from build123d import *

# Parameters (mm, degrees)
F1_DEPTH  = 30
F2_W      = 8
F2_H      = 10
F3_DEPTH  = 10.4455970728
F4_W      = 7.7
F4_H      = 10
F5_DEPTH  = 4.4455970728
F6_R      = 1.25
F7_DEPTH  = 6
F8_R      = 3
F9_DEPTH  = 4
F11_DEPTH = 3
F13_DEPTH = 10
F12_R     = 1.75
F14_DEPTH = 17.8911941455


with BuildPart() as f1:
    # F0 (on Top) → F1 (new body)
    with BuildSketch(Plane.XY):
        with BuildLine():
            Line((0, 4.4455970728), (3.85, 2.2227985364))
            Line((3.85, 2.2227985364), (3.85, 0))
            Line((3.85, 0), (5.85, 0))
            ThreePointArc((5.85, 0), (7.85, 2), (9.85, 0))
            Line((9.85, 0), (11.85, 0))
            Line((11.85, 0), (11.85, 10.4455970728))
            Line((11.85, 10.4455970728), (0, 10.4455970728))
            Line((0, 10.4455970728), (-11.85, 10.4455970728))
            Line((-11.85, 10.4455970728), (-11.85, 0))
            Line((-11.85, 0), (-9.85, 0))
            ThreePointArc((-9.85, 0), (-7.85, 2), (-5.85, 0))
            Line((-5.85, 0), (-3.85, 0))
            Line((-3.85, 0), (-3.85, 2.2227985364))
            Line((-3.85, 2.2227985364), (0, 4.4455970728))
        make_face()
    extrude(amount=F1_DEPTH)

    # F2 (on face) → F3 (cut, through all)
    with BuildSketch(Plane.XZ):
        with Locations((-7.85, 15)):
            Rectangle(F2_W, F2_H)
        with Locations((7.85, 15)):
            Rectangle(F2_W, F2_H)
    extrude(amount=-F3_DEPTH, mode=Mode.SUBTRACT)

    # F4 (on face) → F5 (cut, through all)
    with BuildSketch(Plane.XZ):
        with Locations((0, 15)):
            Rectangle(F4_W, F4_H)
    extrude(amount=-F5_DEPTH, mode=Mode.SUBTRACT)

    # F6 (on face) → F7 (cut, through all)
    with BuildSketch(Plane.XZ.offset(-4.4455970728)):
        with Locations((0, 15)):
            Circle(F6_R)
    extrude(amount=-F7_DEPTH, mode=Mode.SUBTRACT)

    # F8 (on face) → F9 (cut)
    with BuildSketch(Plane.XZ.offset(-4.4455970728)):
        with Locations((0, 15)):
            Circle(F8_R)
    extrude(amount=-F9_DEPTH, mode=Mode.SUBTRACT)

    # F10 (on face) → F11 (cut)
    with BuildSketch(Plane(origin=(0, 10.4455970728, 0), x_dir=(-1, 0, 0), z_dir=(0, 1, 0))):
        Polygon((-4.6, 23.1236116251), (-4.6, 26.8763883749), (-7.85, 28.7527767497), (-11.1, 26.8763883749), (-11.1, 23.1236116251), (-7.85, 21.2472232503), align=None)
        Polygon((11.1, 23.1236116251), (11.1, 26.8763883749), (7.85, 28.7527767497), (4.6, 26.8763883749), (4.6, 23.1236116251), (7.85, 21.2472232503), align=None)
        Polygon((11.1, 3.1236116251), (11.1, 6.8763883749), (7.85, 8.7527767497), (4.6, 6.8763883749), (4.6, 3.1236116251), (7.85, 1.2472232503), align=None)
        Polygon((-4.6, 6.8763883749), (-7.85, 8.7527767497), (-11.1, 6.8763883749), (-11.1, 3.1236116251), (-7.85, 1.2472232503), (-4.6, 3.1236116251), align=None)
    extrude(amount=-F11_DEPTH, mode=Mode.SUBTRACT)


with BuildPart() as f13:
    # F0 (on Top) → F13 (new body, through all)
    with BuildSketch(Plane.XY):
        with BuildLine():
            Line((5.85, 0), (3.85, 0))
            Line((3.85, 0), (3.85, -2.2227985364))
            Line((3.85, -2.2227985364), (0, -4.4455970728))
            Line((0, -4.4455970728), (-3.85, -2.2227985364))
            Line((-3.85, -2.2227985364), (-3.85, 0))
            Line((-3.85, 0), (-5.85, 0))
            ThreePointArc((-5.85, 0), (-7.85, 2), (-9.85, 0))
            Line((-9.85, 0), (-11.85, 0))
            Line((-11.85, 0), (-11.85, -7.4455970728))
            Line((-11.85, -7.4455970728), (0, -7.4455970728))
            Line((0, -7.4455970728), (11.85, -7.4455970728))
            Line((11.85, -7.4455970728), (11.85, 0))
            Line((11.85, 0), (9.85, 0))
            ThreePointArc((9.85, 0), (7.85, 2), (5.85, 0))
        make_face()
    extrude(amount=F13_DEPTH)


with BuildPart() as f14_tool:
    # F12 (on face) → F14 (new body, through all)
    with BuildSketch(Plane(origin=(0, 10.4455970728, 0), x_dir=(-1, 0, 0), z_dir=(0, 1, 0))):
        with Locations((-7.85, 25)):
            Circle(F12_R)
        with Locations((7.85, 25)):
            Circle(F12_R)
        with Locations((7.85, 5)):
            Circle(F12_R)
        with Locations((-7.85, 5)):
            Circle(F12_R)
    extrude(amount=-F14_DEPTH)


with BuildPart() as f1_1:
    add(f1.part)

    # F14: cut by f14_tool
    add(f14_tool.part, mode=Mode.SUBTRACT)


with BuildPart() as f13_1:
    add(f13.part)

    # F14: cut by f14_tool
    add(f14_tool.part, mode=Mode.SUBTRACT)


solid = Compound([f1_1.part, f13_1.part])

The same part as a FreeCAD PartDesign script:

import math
import FreeCAD as App
import Part
import Sketcher
from FreeCAD import Vector
Q = App.Units.Quantity

doc = App.newDocument("Part")
body = doc.addObject("PartDesign::Body", "Body")

# Sketch on XY plane
sketch1 = body.newObject("Sketcher::SketchObject", "Sketch")
sketch1.AttachmentSupport = (doc.getObject("XY_Plane"), [""])
sketch1.MapMode = "FlatFace"
sketch1.addGeometry([
    Part.LineSegment(Vector(0, 4.4, 0), Vector(3.9, 2.2, 0)),  # 0
    Part.LineSegment(Vector(3.9, 2.2, 0), Vector(3.9, 0, 0)),  # 1
    Part.LineSegment(Vector(3.9, 0, 0), Vector(5.8, 0, 0)),  # 2
    Part.ArcOfCircle(Part.Circle(Vector(7.8, 0, 0), Vector(0, 0, 1), 2), math.radians(0), math.radians(180)),  # 3
    Part.LineSegment(Vector(9.8, 0, 0), Vector(11.8, 0, 0)),  # 4
    Part.LineSegment(Vector(11.8, 0, 0), Vector(11.8, 10.4, 0)),  # 5
    Part.LineSegment(Vector(11.8, 10.4, 0), Vector(-11.8, 10.4, 0)),  # 6
    Part.LineSegment(Vector(-11.8, 10.4, 0), Vector(-11.8, 0, 0)),  # 7
    Part.LineSegment(Vector(-11.8, 0, 0), Vector(-9.8, 0, 0)),  # 8
    Part.ArcOfCircle(Part.Circle(Vector(-7.8, 0, 0), Vector(0, 0, 1), 2), math.radians(0), math.radians(180)),  # 9
    Part.LineSegment(Vector(-5.8, 0, 0), Vector(-3.9, 0, 0)),  # 10
    Part.LineSegment(Vector(-3.9, 0, 0), Vector(-3.9, 2.2, 0)),  # 11
    Part.LineSegment(Vector(-3.9, 2.2, 0), Vector(0, 4.4, 0)),  # 12
], False)
sketch1.addConstraint([
    Sketcher.Constraint("Coincident", 0, 2, 1, 1),
    Sketcher.Constraint("Coincident", 1, 2, 2, 1),
    Sketcher.Constraint("Coincident", 2, 2, 3, 2),
    Sketcher.Constraint("Coincident", 3, 1, 4, 1),
    Sketcher.Constraint("Coincident", 4, 2, 5, 1),
    Sketcher.Constraint("Coincident", 5, 2, 6, 1),
    Sketcher.Constraint("Coincident", 6, 2, 7, 1),
    Sketcher.Constraint("Coincident", 7, 2, 8, 1),
    Sketcher.Constraint("Coincident", 8, 2, 9, 2),
    Sketcher.Constraint("Coincident", 9, 1, 10, 1),
    Sketcher.Constraint("Coincident", 10, 2, 11, 1),
    Sketcher.Constraint("Coincident", 11, 2, 12, 1),
    Sketcher.Constraint("Coincident", 12, 2, 0, 1),
    Sketcher.Constraint("Vertical", 1),
    Sketcher.Constraint("Horizontal", 2),
    Sketcher.Constraint("Horizontal", 4),
    Sketcher.Constraint("Vertical", 5),
    Sketcher.Constraint("Horizontal", 6),
    Sketcher.Constraint("Vertical", 7),
    Sketcher.Constraint("Horizontal", 8),
    Sketcher.Constraint("Horizontal", 10),
    Sketcher.Constraint("Vertical", 11),
    Sketcher.Constraint("Equal", 3, 9),
    Sketcher.Constraint("Symmetric", 3, 3, 9, 3, -1, 1),
    Sketcher.Constraint("Symmetric", 4, 2, 7, 2, -1, 1),
    Sketcher.Constraint("Symmetric", 1, 2, 10, 2, -1, 1),
    Sketcher.Constraint("PointOnObject", 3, 3, -1),
    Sketcher.Constraint("PointOnObject", 1, 2, -1),
    Sketcher.Constraint("PointOnObject", 3, 1, -1),
    Sketcher.Constraint("PointOnObject", 12, 2, -2),
    Sketcher.Constraint("Horizontal", 0, 2, 11, 2),
    Sketcher.Constraint("Equal", 2, 4),
    Sketcher.Constraint("Radius", 3, Q("2 mm")),
    Sketcher.Constraint("DistanceX", 2, 1, 2, 2, Q("2 mm")),
    Sketcher.Constraint("Angle", 0, Q("-30 deg")),
    Sketcher.Constraint("DistanceX", 6, 2, 6, 1, Q("23.7 mm")),
    Sketcher.Constraint("DistanceY", 1, 2, 1, 1, Q("2.222799 mm")),
    Sketcher.Constraint("DistanceY", 0, 2, 5, 2, Q("8.222799 mm")),
])
pad1 = body.newObject("PartDesign::Pad", "Pad")
pad1.Profile = sketch1
pad1.Length = 30

# Sketch on XZ plane
sketch2 = body.newObject("Sketcher::SketchObject", "Sketch001")
sketch2.AttachmentSupport = (doc.getObject("XZ_Plane"), [""])
sketch2.MapMode = "FlatFace"
sketch2.addGeometry([
    Part.LineSegment(Vector(-12, 20, 0), Vector(-12, 10, 0)),  # 0
    Part.LineSegment(Vector(-12, 10, 0), Vector(-4, 10, 0)),  # 1
    Part.LineSegment(Vector(-4, 10, 0), Vector(-4, 20, 0)),  # 2
    Part.LineSegment(Vector(-4, 20, 0), Vector(-12, 20, 0)),  # 3
    Part.LineSegment(Vector(4, 20, 0), Vector(4, 10, 0)),  # 4
    Part.LineSegment(Vector(4, 10, 0), Vector(12, 10, 0)),  # 5
    Part.LineSegment(Vector(12, 10, 0), Vector(12, 20, 0)),  # 6
    Part.LineSegment(Vector(12, 20, 0), Vector(4, 20, 0)),  # 7
], False)
sketch2.addConstraint([
    Sketcher.Constraint("Coincident", 0, 2, 1, 1),
    Sketcher.Constraint("Coincident", 1, 2, 2, 1),
    Sketcher.Constraint("Coincident", 2, 2, 3, 1),
    Sketcher.Constraint("Coincident", 3, 2, 0, 1),
    Sketcher.Constraint("Coincident", 4, 2, 5, 1),
    Sketcher.Constraint("Coincident", 5, 2, 6, 1),
    Sketcher.Constraint("Coincident", 6, 2, 7, 1),
    Sketcher.Constraint("Coincident", 7, 2, 4, 1),
    Sketcher.Constraint("Vertical", 0),
    Sketcher.Constraint("Horizontal", 1),
    Sketcher.Constraint("Vertical", 2),
    Sketcher.Constraint("Horizontal", 3),
    Sketcher.Constraint("Vertical", 4),
    Sketcher.Constraint("Horizontal", 5),
    Sketcher.Constraint("Vertical", 6),
    Sketcher.Constraint("Horizontal", 7),
    Sketcher.Constraint("Symmetric", 1, 2, 4, 2, -2),
    Sketcher.Constraint("Symmetric", 3, 2, 6, 2, -2),
    Sketcher.Constraint("DistanceX", 1, 1, 1, 2, Q("8 mm")),
    Sketcher.Constraint("DistanceY", 0, 2, 0, 1, Q("10 mm")),
    Sketcher.Constraint("DistanceY", -1, 1, 0, 2, Q("10 mm")),
    Sketcher.Constraint("DistanceX", 1, 2, 4, 2, Q("7.7 mm")),
])
pocket1 = body.newObject("PartDesign::Pocket", "Pocket")
pocket1.Profile = sketch2
pocket1.Type = "ThroughAll"

# Sketch on XZ plane
sketch3 = body.newObject("Sketcher::SketchObject", "Sketch002")
sketch3.AttachmentSupport = (doc.getObject("XZ_Plane"), [""])
sketch3.MapMode = "FlatFace"
sketch3.addGeometry([
    Part.LineSegment(Vector(-4, 20, 0), Vector(-4, 10, 0)),
    Part.LineSegment(Vector(-4, 10, 0), Vector(4, 10, 0)),
    Part.LineSegment(Vector(4, 10, 0), Vector(4, 20, 0)),
    Part.LineSegment(Vector(4, 20, 0), Vector(-4, 20, 0)),
], False)
sketch3.addConstraint([
    Sketcher.Constraint("Coincident", 0, 2, 1, 1),
    Sketcher.Constraint("Coincident", 1, 2, 2, 1),
    Sketcher.Constraint("Coincident", 2, 2, 3, 1),
    Sketcher.Constraint("Coincident", 3, 2, 0, 1),
    Sketcher.Constraint("Vertical", 0),
    Sketcher.Constraint("Horizontal", 1),
    Sketcher.Constraint("Vertical", 2),
    Sketcher.Constraint("Horizontal", 3),
    Sketcher.Constraint("DistanceY", 0, 2, 0, 1, Q("10 mm")),
    Sketcher.Constraint("DistanceX", 1, 1, 1, 2, Q("7.7 mm")),
    Sketcher.Constraint("DistanceY", -1, 1, 0, 2, Q("10 mm")),
    Sketcher.Constraint("DistanceX", 0, 2, -1, 1, Q("3.85 mm")),
])
pocket2 = body.newObject("PartDesign::Pocket", "Pocket001")
pocket2.Profile = sketch3
pocket2.Length = 4.445597

# Sketch on XZ plane
sketch4 = body.newObject("Sketcher::SketchObject", "Sketch003")
sketch4.AttachmentSupport = (doc.getObject("XZ_Plane"), [""])
sketch4.MapMode = "FlatFace"
sketch4.AttachmentOffset = App.Placement(Vector(0, 0, -4.445597), App.Rotation())
sketch4.addGeometry(Part.Circle(Vector(0, 15, 0), Vector(0, 0, 1), 1.2), False)
sketch4.addConstraint([
    Sketcher.Constraint("PointOnObject", 0, 3, -2),
    Sketcher.Constraint("Diameter", 0, Q("2.5 mm")),
    Sketcher.Constraint("DistanceY", -1, 1, 0, 3, Q("15 mm")),
])
pocket3 = body.newObject("PartDesign::Pocket", "Pocket002")
pocket3.Profile = sketch4
pocket3.Type = "ThroughAll"

# Sketch on XZ plane
sketch5 = body.newObject("Sketcher::SketchObject", "Sketch004")
sketch5.AttachmentSupport = (doc.getObject("XZ_Plane"), [""])
sketch5.MapMode = "FlatFace"
sketch5.AttachmentOffset = App.Placement(Vector(0, 0, -4.445597), App.Rotation())
sketch5.addGeometry(Part.Circle(Vector(0, 15, 0), Vector(0, 0, 1), 3), False)
sketch5.addConstraint([
    Sketcher.Constraint("PointOnObject", 0, 3, -2),
    Sketcher.Constraint("Diameter", 0, Q("6 mm")),
    Sketcher.Constraint("DistanceY", -1, 1, 0, 3, Q("15 mm")),
])
pocket4 = body.newObject("PartDesign::Pocket", "Pocket003")
pocket4.Profile = sketch5
pocket4.Length = 4

# Sketch on XZ plane
sketch6 = body.newObject("Sketcher::SketchObject", "Sketch005")
sketch6.AttachmentSupport = (doc.getObject("XZ_Plane"), [""])
sketch6.MapMode = "FlatFace"
sketch6.AttachmentOffset = App.Placement(Vector(0, 0, -10.445597), App.Rotation())
sketch6.addGeometry([
    Part.LineSegment(Vector(4.6, 23.1, 0), Vector(4.6, 26.9, 0)),  # 0
    Part.LineSegment(Vector(4.6, 26.9, 0), Vector(7.8, 28.8, 0)),  # 1
    Part.LineSegment(Vector(7.8, 28.8, 0), Vector(11.1, 26.9, 0)),  # 2
    Part.LineSegment(Vector(11.1, 26.9, 0), Vector(11.1, 23.1, 0)),  # 3
    Part.LineSegment(Vector(11.1, 23.1, 0), Vector(7.8, 21.2, 0)),  # 4
    Part.LineSegment(Vector(7.8, 21.2, 0), Vector(4.6, 23.1, 0)),  # 5
    Part.LineSegment(Vector(-11.1, 23.1, 0), Vector(-11.1, 26.9, 0)),  # 6
    Part.LineSegment(Vector(-11.1, 26.9, 0), Vector(-7.8, 28.8, 0)),  # 7
    Part.LineSegment(Vector(-7.8, 28.8, 0), Vector(-4.6, 26.9, 0)),  # 8
    Part.LineSegment(Vector(-4.6, 26.9, 0), Vector(-4.6, 23.1, 0)),  # 9
    Part.LineSegment(Vector(-4.6, 23.1, 0), Vector(-7.8, 21.2, 0)),  # 10
    Part.LineSegment(Vector(-7.8, 21.2, 0), Vector(-11.1, 23.1, 0)),  # 11
    Part.LineSegment(Vector(-11.1, 3.1, 0), Vector(-11.1, 6.9, 0)),  # 12
    Part.LineSegment(Vector(-11.1, 6.9, 0), Vector(-7.8, 8.8, 0)),  # 13
    Part.LineSegment(Vector(-7.8, 8.8, 0), Vector(-4.6, 6.9, 0)),  # 14
    Part.LineSegment(Vector(-4.6, 6.9, 0), Vector(-4.6, 3.1, 0)),  # 15
    Part.LineSegment(Vector(-4.6, 3.1, 0), Vector(-7.8, 1.2, 0)),  # 16
    Part.LineSegment(Vector(-7.8, 1.2, 0), Vector(-11.1, 3.1, 0)),  # 17
    Part.LineSegment(Vector(4.6, 6.9, 0), Vector(7.8, 8.8, 0)),  # 18
    Part.LineSegment(Vector(7.8, 8.8, 0), Vector(11.1, 6.9, 0)),  # 19
    Part.LineSegment(Vector(11.1, 6.9, 0), Vector(11.1, 3.1, 0)),  # 20
    Part.LineSegment(Vector(11.1, 3.1, 0), Vector(7.8, 1.2, 0)),  # 21
    Part.LineSegment(Vector(7.8, 1.2, 0), Vector(4.6, 3.1, 0)),  # 22
    Part.LineSegment(Vector(4.6, 3.1, 0), Vector(4.6, 6.9, 0)),  # 23
], False)
sketch6.addConstraint([
    Sketcher.Constraint("Coincident", 0, 2, 1, 1),
    Sketcher.Constraint("Coincident", 1, 2, 2, 1),
    Sketcher.Constraint("Coincident", 2, 2, 3, 1),
    Sketcher.Constraint("Coincident", 3, 2, 4, 1),
    Sketcher.Constraint("Coincident", 4, 2, 5, 1),
    Sketcher.Constraint("Coincident", 5, 2, 0, 1),
    Sketcher.Constraint("Coincident", 6, 2, 7, 1),
    Sketcher.Constraint("Coincident", 7, 2, 8, 1),
    Sketcher.Constraint("Coincident", 8, 2, 9, 1),
    Sketcher.Constraint("Coincident", 9, 2, 10, 1),
    Sketcher.Constraint("Coincident", 10, 2, 11, 1),
    Sketcher.Constraint("Coincident", 11, 2, 6, 1),
    Sketcher.Constraint("Coincident", 12, 2, 13, 1),
    Sketcher.Constraint("Coincident", 13, 2, 14, 1),
    Sketcher.Constraint("Coincident", 14, 2, 15, 1),
    Sketcher.Constraint("Coincident", 15, 2, 16, 1),
    Sketcher.Constraint("Coincident", 16, 2, 17, 1),
    Sketcher.Constraint("Coincident", 17, 2, 12, 1),
    Sketcher.Constraint("Coincident", 18, 2, 19, 1),
    Sketcher.Constraint("Coincident", 19, 2, 20, 1),
    Sketcher.Constraint("Coincident", 20, 2, 21, 1),
    Sketcher.Constraint("Coincident", 21, 2, 22, 1),
    Sketcher.Constraint("Coincident", 22, 2, 23, 1),
    Sketcher.Constraint("Coincident", 23, 2, 18, 1),
    Sketcher.Constraint("Vertical", 0),
    Sketcher.Constraint("Vertical", 3),
    Sketcher.Constraint("Vertical", 6),
    Sketcher.Constraint("Vertical", 9),
    Sketcher.Constraint("Vertical", 12),
    Sketcher.Constraint("Vertical", 15),
    Sketcher.Constraint("Vertical", 20),
    Sketcher.Constraint("Vertical", 23),
    Sketcher.Constraint("Symmetric", 2, 2, 6, 2, -2),
    Sketcher.Constraint("Symmetric", 1, 2, 7, 2, -2),
    Sketcher.Constraint("Symmetric", 0, 2, 8, 2, -2),
    Sketcher.Constraint("Symmetric", 4, 2, 10, 2, -2),
    Sketcher.Constraint("Symmetric", 13, 2, 18, 2, -2),
    Sketcher.Constraint("Symmetric", 12, 2, 19, 2, -2),
    Sketcher.Constraint("Symmetric", 16, 2, 21, 2, -2),
    Sketcher.Constraint("Symmetric", 15, 2, 22, 2, -2),
    Sketcher.Constraint("Parallel", 1, 4),
    Sketcher.Constraint("Parallel", 2, 5),
    Sketcher.Constraint("Parallel", 4, 7),
    Sketcher.Constraint("Parallel", 7, 10),
    Sketcher.Constraint("Parallel", 8, 11),
    Sketcher.Constraint("Parallel", 10, 13),
    Sketcher.Constraint("Parallel", 11, 14),
    Sketcher.Constraint("Parallel", 13, 16),
    Sketcher.Constraint("Parallel", 14, 17),
    Sketcher.Constraint("Parallel", 16, 18),
    Sketcher.Constraint("Parallel", 18, 21),
    Sketcher.Constraint("Horizontal", 0, 2, 2, 2),
    Sketcher.Constraint("Horizontal", 3, 2, 5, 2),
    Sketcher.Constraint("Horizontal", 12, 2, 14, 2),
    Sketcher.Constraint("Horizontal", 15, 2, 17, 2),
    Sketcher.Constraint("Vertical", 11, 2, 12, 2),
    Sketcher.Constraint("Vertical", 10, 2, 13, 2),
    Sketcher.Constraint("Equal", 9, 12),
    Sketcher.Constraint("Angle", 1, Q("30 deg")),
    Sketcher.Constraint("DistanceY", 12, 2, 6, 2, Q("20 mm")),
    Sketcher.Constraint("DistanceX", -1, 1, 0, 2, Q("4.6 mm")),
    Sketcher.Constraint("DistanceX", -1, 1, 2, 2, Q("11.1 mm")),
    Sketcher.Constraint("DistanceY", 0, 1, 0, 2, Q("3.752777 mm")),
    Sketcher.Constraint("DistanceY", -1, 1, 0, 2, Q("26.876388 mm")),
])
pocket5 = body.newObject("PartDesign::Pocket", "Pocket004")
pocket5.Profile = sketch6
pocket5.Length = 3
pocket5.Reversed = True
body2 = doc.addObject("PartDesign::Body", "Body001")

# Sketch on XY plane
sketch7 = body2.newObject("Sketcher::SketchObject", "Sketch006")
sketch7.AttachmentSupport = (doc.getObject("XY_Plane001"), [""])
sketch7.MapMode = "FlatFace"
sketch7.addGeometry([
    Part.LineSegment(Vector(5.8, 0, 0), Vector(3.9, 0, 0)),  # 0
    Part.LineSegment(Vector(3.9, 0, 0), Vector(3.9, -2.2, 0)),  # 1
    Part.LineSegment(Vector(3.9, -2.2, 0), Vector(0, -4.4, 0)),  # 2
    Part.LineSegment(Vector(0, -4.4, 0), Vector(-3.9, -2.2, 0)),  # 3
    Part.LineSegment(Vector(-3.9, -2.2, 0), Vector(-3.9, 0, 0)),  # 4
    Part.LineSegment(Vector(-3.9, 0, 0), Vector(-5.8, 0, 0)),  # 5
    Part.ArcOfCircle(Part.Circle(Vector(-7.8, 0, 0), Vector(0, 0, 1), 2), math.radians(0), math.radians(180)),  # 6
    Part.LineSegment(Vector(-9.8, 0, 0), Vector(-11.8, 0, 0)),  # 7
    Part.LineSegment(Vector(-11.8, 0, 0), Vector(-11.8, -7.4, 0)),  # 8
    Part.LineSegment(Vector(-11.8, -7.4, 0), Vector(11.8, -7.4, 0)),  # 9
    Part.LineSegment(Vector(11.8, -7.4, 0), Vector(11.8, 0, 0)),  # 10
    Part.LineSegment(Vector(11.8, 0, 0), Vector(9.8, 0, 0)),  # 11
    Part.ArcOfCircle(Part.Circle(Vector(7.8, 0, 0), Vector(0, 0, 1), 2), math.radians(0), math.radians(180)),  # 12
], False)
sketch7.addConstraint([
    Sketcher.Constraint("Coincident", 0, 2, 1, 1),
    Sketcher.Constraint("Coincident", 1, 2, 2, 1),
    Sketcher.Constraint("Coincident", 2, 2, 3, 1),
    Sketcher.Constraint("Coincident", 3, 2, 4, 1),
    Sketcher.Constraint("Coincident", 4, 2, 5, 1),
    Sketcher.Constraint("Coincident", 5, 2, 6, 1),
    Sketcher.Constraint("Coincident", 6, 2, 7, 1),
    Sketcher.Constraint("Coincident", 7, 2, 8, 1),
    Sketcher.Constraint("Coincident", 8, 2, 9, 1),
    Sketcher.Constraint("Coincident", 9, 2, 10, 1),
    Sketcher.Constraint("Coincident", 10, 2, 11, 1),
    Sketcher.Constraint("Coincident", 11, 2, 12, 1),
    Sketcher.Constraint("Coincident", 12, 2, 0, 1),
    Sketcher.Constraint("Horizontal", 0),
    Sketcher.Constraint("Vertical", 1),
    Sketcher.Constraint("Vertical", 4),
    Sketcher.Constraint("Horizontal", 5),
    Sketcher.Constraint("Horizontal", 7),
    Sketcher.Constraint("Vertical", 8),
    Sketcher.Constraint("Horizontal", 9),
    Sketcher.Constraint("Vertical", 10),
    Sketcher.Constraint("Horizontal", 11),
    Sketcher.Constraint("Equal", 6, 12),
    Sketcher.Constraint("Symmetric", 6, 3, 12, 3, -1, 1),
    Sketcher.Constraint("Symmetric", 0, 2, 4, 2, -1, 1),
    Sketcher.Constraint("Symmetric", 7, 2, 10, 2, -1, 1),
    Sketcher.Constraint("PointOnObject", 6, 3, -1),
    Sketcher.Constraint("PointOnObject", 0, 2, -1),
    Sketcher.Constraint("PointOnObject", 2, 2, -2),
    Sketcher.Constraint("PointOnObject", 6, 2, -1),
    Sketcher.Constraint("Horizontal", 1, 2, 3, 2),
    Sketcher.Constraint("Equal", 5, 7),
    Sketcher.Constraint("Radius", 6, Q("2 mm")),
    Sketcher.Constraint("DistanceX", 0, 2, 0, 1, Q("2 mm")),
    Sketcher.Constraint("Angle", 2, Q("-150 deg")),
    Sketcher.Constraint("DistanceX", 9, 1, 9, 2, Q("23.7 mm")),
    Sketcher.Constraint("DistanceY", 9, 2, 2, 2, Q("3 mm")),
    Sketcher.Constraint("DistanceY", 1, 2, 1, 1, Q("2.222799 mm")),
])
pad2 = body2.newObject("PartDesign::Pad", "Pad001")
pad2.Profile = sketch7
pad2.Length = 10
body3 = doc.addObject("PartDesign::Body", "Body002")
body3.AllowCompound = True

# Sketch on XZ plane
sketch8 = body3.newObject("Sketcher::SketchObject", "Sketch007")
sketch8.AttachmentSupport = (doc.getObject("XZ_Plane002"), [""])
sketch8.MapMode = "FlatFace"
sketch8.AttachmentOffset = App.Placement(Vector(0, 0, -10.445597), App.Rotation())
sketch8.addGeometry([
    Part.Circle(Vector(7.8, 25, 0), Vector(0, 0, 1), 1.8),
    Part.Circle(Vector(-7.8, 25, 0), Vector(0, 0, 1), 1.8),
    Part.Circle(Vector(-7.8, 5, 0), Vector(0, 0, 1), 1.8),
    Part.Circle(Vector(7.8, 5, 0), Vector(0, 0, 1), 1.8),
], False)
sketch8.addConstraint([
    Sketcher.Constraint("Equal", 0, 1),
    Sketcher.Constraint("Equal", 1, 2),
    Sketcher.Constraint("Equal", 2, 3),
    Sketcher.Constraint("Symmetric", 0, 3, 1, 3, -2),
    Sketcher.Constraint("Symmetric", 2, 3, 3, 3, -2),
    Sketcher.Constraint("Vertical", 1, 3, 2, 3),
    Sketcher.Constraint("Diameter", 0, Q("3.5 mm")),
    Sketcher.Constraint("DistanceY", -1, 1, 0, 3, Q("25 mm")),
    Sketcher.Constraint("DistanceY", -1, 1, 2, 3, Q("5 mm")),
    Sketcher.Constraint("DistanceX", 1, 3, 0, 3, Q("15.7 mm")),
])
pad3 = body3.newObject("PartDesign::Pad", "Pad002")
pad3.Profile = sketch8
pad3.Length = 17.891194
doc.recompute()

body4 = doc.addObject("PartDesign::Body", "Body003")
body4.BaseFeature = body3
boolean = body.newObject("PartDesign::Boolean", "Boolean")
boolean.Type = "Cut"
boolean.addObjects([body4])
doc.recompute()

boolean2 = body2.newObject("PartDesign::Boolean", "Boolean001")
boolean2.Type = "Cut"
boolean2.addObjects([body3])

doc.recompute()
